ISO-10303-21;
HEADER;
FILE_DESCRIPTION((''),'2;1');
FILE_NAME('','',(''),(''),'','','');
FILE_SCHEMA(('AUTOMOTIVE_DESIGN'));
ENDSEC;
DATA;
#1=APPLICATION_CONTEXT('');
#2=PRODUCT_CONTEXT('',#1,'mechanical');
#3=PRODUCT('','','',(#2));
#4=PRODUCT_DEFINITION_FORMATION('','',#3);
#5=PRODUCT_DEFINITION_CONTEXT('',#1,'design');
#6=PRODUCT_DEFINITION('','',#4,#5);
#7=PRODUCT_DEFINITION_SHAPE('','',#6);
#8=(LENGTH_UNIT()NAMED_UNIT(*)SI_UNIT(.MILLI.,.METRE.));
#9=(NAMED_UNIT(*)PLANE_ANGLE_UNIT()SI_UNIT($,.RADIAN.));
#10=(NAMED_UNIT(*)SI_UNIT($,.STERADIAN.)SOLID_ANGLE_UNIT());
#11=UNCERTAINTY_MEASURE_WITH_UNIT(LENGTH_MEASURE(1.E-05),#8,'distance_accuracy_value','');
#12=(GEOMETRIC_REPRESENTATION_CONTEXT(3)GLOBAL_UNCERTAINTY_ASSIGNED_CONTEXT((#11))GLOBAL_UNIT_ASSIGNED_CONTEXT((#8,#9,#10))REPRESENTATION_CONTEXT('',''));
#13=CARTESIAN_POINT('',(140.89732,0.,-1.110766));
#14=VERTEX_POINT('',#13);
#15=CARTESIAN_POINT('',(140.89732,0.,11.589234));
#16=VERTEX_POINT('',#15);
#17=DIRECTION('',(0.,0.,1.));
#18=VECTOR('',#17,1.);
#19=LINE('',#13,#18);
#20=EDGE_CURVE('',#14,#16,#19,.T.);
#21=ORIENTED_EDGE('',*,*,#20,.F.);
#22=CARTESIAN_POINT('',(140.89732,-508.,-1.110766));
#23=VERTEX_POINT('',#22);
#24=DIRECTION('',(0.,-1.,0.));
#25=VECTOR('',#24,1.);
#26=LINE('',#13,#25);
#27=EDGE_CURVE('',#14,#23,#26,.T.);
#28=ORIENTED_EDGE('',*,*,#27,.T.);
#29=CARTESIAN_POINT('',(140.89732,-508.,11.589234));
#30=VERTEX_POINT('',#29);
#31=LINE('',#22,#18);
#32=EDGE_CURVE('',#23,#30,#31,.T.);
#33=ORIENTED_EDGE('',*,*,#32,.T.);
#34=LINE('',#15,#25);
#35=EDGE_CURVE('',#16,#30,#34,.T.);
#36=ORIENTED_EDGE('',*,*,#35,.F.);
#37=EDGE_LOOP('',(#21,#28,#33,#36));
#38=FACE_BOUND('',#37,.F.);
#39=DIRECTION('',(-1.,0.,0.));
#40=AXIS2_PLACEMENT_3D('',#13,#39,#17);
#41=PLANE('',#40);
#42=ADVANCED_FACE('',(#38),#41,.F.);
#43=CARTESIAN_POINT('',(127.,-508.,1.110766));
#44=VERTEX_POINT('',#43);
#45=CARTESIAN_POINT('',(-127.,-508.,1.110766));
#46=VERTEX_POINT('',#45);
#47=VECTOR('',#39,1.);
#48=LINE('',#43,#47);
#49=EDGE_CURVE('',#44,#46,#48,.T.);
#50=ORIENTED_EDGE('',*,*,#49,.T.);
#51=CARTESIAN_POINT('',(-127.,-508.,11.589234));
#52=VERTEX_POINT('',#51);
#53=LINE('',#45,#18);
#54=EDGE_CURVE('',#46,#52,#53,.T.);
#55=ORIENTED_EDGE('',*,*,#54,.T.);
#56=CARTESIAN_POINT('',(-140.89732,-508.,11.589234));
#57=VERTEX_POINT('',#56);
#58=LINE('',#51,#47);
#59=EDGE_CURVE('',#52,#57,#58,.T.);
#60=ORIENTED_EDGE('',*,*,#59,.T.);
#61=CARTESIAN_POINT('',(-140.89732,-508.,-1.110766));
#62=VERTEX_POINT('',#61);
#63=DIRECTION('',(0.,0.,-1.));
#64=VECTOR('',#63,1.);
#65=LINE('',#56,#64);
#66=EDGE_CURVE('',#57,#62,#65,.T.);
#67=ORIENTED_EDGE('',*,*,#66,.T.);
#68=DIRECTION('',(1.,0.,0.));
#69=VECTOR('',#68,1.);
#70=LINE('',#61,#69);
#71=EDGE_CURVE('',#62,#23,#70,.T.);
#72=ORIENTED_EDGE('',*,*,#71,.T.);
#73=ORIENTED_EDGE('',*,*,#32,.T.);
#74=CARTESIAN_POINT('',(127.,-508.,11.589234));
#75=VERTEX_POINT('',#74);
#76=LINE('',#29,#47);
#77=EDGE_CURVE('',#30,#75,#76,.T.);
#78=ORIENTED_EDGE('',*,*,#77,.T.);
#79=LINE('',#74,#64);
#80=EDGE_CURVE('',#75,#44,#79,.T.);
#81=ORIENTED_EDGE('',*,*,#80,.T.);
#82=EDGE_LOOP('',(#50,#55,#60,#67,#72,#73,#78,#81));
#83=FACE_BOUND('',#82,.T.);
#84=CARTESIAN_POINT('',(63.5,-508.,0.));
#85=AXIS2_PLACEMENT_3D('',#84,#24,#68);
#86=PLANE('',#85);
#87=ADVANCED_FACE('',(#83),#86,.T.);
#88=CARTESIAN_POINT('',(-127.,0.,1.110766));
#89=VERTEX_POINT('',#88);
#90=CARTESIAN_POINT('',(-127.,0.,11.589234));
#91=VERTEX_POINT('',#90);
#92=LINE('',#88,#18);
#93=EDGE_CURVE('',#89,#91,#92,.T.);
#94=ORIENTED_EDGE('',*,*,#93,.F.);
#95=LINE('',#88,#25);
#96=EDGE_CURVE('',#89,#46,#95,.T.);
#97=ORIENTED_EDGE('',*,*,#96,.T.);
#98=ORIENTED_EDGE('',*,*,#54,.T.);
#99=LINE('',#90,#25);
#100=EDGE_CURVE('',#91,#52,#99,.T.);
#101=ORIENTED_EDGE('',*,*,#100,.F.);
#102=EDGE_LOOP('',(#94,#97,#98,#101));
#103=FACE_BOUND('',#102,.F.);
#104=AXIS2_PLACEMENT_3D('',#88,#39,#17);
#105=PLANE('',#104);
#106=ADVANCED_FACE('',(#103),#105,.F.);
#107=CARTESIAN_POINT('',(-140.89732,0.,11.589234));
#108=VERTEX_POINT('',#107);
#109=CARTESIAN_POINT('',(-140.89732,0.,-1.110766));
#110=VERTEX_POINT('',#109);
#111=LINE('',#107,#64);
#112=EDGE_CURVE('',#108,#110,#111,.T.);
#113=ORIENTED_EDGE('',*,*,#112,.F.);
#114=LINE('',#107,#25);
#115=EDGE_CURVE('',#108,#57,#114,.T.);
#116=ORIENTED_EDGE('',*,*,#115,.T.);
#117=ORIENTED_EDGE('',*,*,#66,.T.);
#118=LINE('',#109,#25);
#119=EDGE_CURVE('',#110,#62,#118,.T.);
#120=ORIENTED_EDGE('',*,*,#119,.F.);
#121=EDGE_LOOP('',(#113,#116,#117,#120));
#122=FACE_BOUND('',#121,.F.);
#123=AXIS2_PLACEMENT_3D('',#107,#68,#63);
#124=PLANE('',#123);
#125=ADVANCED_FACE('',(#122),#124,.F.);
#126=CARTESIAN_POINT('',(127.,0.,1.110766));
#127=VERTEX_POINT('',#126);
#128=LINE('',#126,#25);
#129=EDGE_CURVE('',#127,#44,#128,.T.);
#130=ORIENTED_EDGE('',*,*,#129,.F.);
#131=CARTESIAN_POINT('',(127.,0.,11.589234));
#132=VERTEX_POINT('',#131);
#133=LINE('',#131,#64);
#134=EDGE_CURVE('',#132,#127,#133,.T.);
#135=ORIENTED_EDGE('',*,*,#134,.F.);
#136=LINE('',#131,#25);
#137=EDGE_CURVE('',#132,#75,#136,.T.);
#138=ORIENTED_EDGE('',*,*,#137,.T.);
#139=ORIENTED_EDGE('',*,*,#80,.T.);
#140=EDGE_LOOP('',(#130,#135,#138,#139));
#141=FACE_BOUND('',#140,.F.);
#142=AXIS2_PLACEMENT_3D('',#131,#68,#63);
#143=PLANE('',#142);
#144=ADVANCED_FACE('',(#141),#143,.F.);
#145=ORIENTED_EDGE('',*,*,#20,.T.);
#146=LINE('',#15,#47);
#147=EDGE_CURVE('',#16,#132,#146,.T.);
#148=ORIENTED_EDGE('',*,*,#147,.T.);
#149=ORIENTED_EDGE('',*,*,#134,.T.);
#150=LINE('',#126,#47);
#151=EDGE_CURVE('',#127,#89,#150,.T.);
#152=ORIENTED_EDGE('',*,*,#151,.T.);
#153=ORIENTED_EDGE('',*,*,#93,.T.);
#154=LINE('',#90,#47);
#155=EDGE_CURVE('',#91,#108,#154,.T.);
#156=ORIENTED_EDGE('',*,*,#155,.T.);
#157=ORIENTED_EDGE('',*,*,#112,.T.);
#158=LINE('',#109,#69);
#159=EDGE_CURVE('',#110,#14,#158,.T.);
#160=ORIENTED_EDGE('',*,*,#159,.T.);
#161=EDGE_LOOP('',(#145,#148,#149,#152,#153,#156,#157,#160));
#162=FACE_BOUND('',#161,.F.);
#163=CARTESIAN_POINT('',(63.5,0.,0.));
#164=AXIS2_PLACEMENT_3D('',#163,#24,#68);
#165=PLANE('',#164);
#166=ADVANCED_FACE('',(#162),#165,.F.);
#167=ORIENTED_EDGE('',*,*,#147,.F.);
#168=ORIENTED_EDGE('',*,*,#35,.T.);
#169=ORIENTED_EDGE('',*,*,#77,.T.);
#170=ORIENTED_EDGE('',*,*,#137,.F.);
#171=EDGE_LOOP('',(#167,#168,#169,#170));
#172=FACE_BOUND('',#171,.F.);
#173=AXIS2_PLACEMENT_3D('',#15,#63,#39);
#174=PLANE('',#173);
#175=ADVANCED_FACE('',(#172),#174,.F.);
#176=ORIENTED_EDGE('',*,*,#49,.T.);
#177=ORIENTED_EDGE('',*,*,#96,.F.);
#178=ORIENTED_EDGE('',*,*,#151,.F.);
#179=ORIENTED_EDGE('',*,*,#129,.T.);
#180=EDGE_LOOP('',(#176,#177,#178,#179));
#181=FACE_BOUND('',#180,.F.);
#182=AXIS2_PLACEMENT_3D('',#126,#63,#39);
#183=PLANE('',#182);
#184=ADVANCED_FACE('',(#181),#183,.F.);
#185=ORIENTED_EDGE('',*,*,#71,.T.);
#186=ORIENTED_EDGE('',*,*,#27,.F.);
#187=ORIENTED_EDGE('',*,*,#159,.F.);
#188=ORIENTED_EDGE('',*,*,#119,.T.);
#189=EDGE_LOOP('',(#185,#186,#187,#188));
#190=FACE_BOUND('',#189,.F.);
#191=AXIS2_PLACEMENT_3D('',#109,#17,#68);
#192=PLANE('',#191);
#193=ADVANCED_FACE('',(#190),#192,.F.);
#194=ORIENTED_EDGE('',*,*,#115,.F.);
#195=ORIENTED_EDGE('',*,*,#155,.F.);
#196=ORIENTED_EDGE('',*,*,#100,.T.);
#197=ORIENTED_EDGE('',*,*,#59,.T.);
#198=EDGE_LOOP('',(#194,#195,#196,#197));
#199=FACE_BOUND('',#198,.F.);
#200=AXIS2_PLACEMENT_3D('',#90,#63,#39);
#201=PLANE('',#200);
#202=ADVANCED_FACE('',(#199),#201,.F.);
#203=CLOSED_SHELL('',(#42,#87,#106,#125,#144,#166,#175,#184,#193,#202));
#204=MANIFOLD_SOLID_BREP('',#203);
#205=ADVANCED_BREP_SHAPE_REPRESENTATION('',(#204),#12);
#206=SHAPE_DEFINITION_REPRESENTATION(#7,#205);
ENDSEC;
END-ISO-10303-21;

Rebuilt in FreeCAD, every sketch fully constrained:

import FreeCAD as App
import Part
import Sketcher

V = App.Vector
Q = App.Units.Quantity

doc = App.newDocument("Part")
body = doc.addObject("PartDesign::Body", "Body")

# Sketch on XZ plane
sketch1 = body.newObject("Sketcher::SketchObject", "Sketch")
sketch1.AttachmentSupport = (doc.getObject("XZ_Plane"), [""])
sketch1.MapMode = "FlatFace"
sketch1.addGeometry([
    Part.LineSegment(V(141, -1, 0), V(141, 12, 0)),  # 0
    Part.LineSegment(V(141, 12, 0), V(127, 12, 0)),  # 1
    Part.LineSegment(V(127, 12, 0), V(127, 1, 0)),  # 2
    Part.LineSegment(V(127, 1, 0), V(-127, 1, 0)),  # 3
    Part.LineSegment(V(-127, 1, 0), V(-127, 12, 0)),  # 4
    Part.LineSegment(V(-127, 12, 0), V(-141, 12, 0)),  # 5
    Part.LineSegment(V(-141, 12, 0), V(-141, -1, 0)),  # 6
    Part.LineSegment(V(-141, -1, 0), V(141, -1, 0)),  # 7
], False)
sketch1.addConstraint([
    Sketcher.Constraint("Coincident", 0, 2, 1, 1),
    Sketcher.Constraint("Coincident", 1, 2, 2, 1),
    Sketcher.Constraint("Coincident", 2, 2, 3, 1),
    Sketcher.Constraint("Coincident", 3, 2, 4, 1),
    Sketcher.Constraint("Coincident", 4, 2, 5, 1),
    Sketcher.Constraint("Coincident", 5, 2, 6, 1),
    Sketcher.Constraint("Coincident", 6, 2, 7, 1),
    Sketcher.Constraint("Coincident", 7, 2, 0, 1),
    Sketcher.Constraint("Vertical", 0),
    Sketcher.Constraint("Horizontal", 1),
    Sketcher.Constraint("Vertical", 2),
    Sketcher.Constraint("Horizontal", 3),
    Sketcher.Constraint("Vertical", 4),
    Sketcher.Constraint("Horizontal", 5),
    Sketcher.Constraint("Vertical", 6),
    Sketcher.Constraint("Horizontal", 7),
    Sketcher.Constraint("Symmetric", 1, 2, 4, 2, -2),
    Sketcher.Constraint("Equal", 1, 5),
    Sketcher.Constraint("DistanceX", 3, 2, 3, 1, Q("10 in")),
    Sketcher.Constraint("DistanceY", 0, 1, 0, 2, Q("0.5 in")),
    Sketcher.Constraint("DistanceX", 1, 2, 1, 1, Q("13.89732 mm")),
    Sketcher.Constraint("DistanceY", 2, 2, 2, 1, Q("10.478468 mm")),
    Sketcher.Constraint("DistanceY", -1, 1, 0, 2, Q("11.589234 mm")),
])
pad1 = body.newObject("PartDesign::Pad", "Pad")
pad1.Profile = sketch1
pad1.Length = Q("20 in")

doc.recompute()
